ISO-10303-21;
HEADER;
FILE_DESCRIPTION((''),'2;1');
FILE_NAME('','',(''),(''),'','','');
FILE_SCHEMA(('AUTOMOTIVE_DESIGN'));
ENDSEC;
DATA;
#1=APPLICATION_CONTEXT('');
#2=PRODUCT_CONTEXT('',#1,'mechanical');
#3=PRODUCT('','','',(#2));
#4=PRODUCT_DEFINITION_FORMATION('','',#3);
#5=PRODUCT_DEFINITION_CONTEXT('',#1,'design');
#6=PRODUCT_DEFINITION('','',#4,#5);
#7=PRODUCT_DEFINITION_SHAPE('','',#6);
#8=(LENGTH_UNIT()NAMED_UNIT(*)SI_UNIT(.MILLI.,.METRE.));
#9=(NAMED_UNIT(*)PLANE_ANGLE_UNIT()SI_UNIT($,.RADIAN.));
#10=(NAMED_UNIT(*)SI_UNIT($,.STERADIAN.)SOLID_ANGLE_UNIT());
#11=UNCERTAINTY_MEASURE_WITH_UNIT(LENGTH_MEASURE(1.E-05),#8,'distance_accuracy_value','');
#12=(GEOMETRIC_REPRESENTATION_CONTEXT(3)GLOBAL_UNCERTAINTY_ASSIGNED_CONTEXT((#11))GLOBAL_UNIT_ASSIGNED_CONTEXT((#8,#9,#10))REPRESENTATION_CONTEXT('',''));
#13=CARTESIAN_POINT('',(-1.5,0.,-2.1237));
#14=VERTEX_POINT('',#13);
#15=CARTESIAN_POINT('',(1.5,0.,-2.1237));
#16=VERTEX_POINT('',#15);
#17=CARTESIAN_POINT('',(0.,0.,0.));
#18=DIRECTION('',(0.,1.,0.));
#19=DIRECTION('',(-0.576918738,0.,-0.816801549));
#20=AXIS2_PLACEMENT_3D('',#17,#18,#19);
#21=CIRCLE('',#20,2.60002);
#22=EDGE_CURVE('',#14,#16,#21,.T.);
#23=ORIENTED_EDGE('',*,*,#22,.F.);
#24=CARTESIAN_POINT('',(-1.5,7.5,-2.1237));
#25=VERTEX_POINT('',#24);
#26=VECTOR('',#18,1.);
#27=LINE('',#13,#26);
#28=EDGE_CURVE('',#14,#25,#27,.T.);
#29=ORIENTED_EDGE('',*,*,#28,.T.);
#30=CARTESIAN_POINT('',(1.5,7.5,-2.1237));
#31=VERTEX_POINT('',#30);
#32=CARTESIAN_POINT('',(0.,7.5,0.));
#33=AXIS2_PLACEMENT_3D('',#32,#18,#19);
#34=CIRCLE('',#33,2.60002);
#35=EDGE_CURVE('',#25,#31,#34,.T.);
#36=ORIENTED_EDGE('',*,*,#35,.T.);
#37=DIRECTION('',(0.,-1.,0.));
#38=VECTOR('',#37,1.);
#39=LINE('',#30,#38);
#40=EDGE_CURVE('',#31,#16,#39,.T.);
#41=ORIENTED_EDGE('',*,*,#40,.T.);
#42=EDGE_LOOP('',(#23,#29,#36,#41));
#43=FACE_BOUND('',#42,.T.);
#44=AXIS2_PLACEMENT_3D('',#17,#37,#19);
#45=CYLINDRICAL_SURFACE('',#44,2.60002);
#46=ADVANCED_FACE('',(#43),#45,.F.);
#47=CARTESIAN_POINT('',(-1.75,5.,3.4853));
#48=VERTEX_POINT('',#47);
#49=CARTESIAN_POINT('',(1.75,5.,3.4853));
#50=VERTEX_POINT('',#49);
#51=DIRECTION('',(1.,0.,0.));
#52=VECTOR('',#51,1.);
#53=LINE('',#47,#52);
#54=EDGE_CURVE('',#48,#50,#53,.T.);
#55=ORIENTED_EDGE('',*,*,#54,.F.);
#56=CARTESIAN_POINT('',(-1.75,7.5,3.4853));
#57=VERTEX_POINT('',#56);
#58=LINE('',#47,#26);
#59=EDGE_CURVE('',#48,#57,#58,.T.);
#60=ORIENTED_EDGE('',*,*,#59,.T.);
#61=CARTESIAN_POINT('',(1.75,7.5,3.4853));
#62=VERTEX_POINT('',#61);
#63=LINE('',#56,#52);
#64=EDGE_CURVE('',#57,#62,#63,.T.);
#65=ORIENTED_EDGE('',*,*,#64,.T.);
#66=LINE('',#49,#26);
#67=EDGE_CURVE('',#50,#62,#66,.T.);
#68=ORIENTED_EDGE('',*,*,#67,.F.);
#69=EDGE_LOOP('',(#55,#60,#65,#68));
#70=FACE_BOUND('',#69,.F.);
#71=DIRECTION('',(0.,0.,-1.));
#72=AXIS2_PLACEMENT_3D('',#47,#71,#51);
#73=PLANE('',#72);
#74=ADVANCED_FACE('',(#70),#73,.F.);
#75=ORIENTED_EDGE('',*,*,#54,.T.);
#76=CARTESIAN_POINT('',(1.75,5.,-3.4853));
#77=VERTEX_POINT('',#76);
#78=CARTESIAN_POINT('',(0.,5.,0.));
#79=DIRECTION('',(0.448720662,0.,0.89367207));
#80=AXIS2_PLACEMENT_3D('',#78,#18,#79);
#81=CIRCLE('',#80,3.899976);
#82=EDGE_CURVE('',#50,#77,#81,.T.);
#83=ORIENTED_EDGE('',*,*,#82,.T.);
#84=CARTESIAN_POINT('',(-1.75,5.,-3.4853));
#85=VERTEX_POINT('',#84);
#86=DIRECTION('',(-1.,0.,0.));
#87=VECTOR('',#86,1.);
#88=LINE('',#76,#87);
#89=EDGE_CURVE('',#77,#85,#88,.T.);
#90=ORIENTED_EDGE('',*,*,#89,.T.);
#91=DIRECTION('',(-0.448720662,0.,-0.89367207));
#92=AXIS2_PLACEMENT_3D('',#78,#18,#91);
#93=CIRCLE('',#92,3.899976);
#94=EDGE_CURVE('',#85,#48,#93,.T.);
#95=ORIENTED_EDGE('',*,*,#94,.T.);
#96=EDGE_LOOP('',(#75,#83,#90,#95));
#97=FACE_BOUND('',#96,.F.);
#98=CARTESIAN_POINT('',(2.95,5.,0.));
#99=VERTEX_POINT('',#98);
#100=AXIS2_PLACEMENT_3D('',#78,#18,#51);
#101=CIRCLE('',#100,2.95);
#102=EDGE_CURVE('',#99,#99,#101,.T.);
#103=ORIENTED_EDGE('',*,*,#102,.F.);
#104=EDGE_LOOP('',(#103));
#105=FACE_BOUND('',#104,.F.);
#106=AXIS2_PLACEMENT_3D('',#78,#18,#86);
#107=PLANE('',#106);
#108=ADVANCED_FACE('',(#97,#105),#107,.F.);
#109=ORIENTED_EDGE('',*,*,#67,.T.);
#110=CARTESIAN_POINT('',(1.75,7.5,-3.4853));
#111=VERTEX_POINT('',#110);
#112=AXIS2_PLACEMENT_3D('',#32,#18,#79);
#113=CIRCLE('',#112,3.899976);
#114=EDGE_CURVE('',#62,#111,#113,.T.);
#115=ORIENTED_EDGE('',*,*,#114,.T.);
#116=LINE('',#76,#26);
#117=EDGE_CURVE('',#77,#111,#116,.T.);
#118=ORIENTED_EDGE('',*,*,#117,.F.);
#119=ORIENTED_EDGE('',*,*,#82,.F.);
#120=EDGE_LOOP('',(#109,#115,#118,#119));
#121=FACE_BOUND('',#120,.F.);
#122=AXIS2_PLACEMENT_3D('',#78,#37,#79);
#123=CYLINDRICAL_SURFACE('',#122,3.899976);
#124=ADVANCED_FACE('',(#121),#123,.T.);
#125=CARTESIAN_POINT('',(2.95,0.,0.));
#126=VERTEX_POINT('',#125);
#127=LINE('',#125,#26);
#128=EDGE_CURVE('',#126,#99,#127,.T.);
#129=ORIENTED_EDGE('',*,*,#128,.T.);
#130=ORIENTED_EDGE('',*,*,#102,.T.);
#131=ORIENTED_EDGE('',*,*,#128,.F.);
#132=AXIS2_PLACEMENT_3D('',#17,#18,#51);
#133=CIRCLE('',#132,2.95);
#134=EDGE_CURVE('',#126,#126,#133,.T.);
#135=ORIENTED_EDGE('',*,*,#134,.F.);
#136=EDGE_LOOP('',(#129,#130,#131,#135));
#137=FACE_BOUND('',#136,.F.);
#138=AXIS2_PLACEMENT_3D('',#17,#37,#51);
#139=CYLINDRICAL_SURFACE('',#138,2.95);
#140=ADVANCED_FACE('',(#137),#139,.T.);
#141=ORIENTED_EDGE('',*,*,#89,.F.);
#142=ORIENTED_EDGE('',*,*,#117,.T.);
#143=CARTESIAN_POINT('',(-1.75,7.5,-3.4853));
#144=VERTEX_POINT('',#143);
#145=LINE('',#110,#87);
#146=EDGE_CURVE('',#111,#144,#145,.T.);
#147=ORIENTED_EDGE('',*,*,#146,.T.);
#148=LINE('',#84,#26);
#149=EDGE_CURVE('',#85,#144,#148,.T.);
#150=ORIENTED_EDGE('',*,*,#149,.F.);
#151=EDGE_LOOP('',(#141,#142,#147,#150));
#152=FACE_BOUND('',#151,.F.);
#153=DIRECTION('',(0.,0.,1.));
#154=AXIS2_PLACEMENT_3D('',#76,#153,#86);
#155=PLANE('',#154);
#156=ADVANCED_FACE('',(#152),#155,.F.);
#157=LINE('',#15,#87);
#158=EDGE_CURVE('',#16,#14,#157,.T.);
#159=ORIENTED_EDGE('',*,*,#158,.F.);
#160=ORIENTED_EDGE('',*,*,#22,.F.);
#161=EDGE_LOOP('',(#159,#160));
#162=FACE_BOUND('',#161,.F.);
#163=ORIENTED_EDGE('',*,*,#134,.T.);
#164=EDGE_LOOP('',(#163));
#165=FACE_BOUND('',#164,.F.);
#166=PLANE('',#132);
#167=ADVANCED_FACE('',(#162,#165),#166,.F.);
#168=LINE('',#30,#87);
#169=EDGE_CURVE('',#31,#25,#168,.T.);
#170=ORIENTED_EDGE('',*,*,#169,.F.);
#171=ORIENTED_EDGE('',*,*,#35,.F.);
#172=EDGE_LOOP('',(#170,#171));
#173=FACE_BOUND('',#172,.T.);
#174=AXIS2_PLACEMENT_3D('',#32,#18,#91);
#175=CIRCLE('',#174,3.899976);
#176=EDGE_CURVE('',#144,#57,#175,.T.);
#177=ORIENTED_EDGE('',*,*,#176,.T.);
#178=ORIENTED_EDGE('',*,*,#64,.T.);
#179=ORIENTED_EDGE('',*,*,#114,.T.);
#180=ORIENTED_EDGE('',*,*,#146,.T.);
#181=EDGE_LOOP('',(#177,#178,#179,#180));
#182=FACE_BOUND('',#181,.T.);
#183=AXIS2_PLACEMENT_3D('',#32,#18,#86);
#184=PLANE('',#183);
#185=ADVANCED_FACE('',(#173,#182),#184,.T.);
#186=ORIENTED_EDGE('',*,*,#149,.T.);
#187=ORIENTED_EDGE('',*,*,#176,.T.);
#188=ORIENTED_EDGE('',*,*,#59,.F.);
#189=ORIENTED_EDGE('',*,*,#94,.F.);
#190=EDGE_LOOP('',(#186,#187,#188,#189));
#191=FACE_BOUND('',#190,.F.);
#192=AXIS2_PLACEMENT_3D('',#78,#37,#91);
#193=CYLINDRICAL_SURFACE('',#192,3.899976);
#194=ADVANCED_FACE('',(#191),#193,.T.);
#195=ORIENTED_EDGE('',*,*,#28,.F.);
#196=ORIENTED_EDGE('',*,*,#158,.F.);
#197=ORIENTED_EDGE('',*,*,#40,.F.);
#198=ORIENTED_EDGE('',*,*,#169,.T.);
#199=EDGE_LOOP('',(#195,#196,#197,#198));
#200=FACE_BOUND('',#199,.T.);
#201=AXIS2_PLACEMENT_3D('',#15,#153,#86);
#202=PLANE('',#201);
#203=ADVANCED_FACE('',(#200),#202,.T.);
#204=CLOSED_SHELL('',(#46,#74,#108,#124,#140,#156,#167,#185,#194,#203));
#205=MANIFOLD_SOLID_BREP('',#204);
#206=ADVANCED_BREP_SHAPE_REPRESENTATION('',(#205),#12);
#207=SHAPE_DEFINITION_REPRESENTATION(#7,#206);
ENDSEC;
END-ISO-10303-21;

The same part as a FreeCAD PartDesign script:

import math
import FreeCAD as App
import Part
import Sketcher

V = App.Vector

doc = App.newDocument("Part")
body = doc.addObject("PartDesign::Body", "Body")

sketch1 = body.newObject("Sketcher::SketchObject", "Sketch")
sketch1.AttachmentSupport = (doc.getObject("XZ_Plane"), [""])
sketch1.MapMode = "FlatFace"
sketch1.addGeometry([
    Part.Circle(V(0, 0, 0), V(0, 0, 1), 3),
    Part.ArcOfCircle(Part.Circle(V(0, 0, 0), V(0, 0, 1), 2.6), math.radians(-55), math.radians(235)),
    Part.LineSegment(V(-1.5, -2.1, 0), V(1.5, -2.1, 0)),
], False)
sketch1.addConstraint([
    Sketcher.Constraint("Coincident", 1, 1, 2, 2),
    Sketcher.Constraint("Coincident", 2, 1, 1, 2),
    Sketcher.Constraint("Horizontal", 2),
    Sketcher.Constraint("Coincident", 0, 3, -1, 1),
    Sketcher.Constraint("Coincident", 1, 3, -1, 1),
    Sketcher.Constraint("Diameter", 0, 5.9),
    Sketcher.Constraint("Radius", 1, 2.6),
    Sketcher.Constraint("DistanceX", 2, 1, 2, 2, 3.0),
])
pad1 = body.newObject("PartDesign::Pad", "Pad")
pad1.Profile = sketch1
pad1.Length = 5
pad1.Reversed = True

sketch2 = body.newObject("Sketcher::SketchObject", "Sketch001")
sketch2.AttachmentSupport = (doc.getObject("XZ_Plane"), [""])
sketch2.MapMode = "FlatFace"
sketch2.AttachmentOffset = App.Placement(V(0, 0, -5), App.Rotation())
sketch2.addGeometry([
    Part.LineSegment(V(1.8, -3.5, 0), V(-1.8, -3.5, 0)),
    Part.ArcOfCircle(Part.Circle(V(0, 0, 0), V(0, 0, 1), 3.9), math.radians(117), math.radians(243)),
    Part.LineSegment(V(-1.8, 3.5, 0), V(1.8, 3.5, 0)),
    Part.ArcOfCircle(Part.Circle(V(0, 0, 0), V(0, 0, 1), 3.9), math.radians(-63), math.radians(63)),
    Part.ArcOfCircle(Part.Circle(V(0, 0, 0), V(0, 0, 1), 2.6), math.radians(-55), math.radians(235)),
    Part.LineSegment(V(-1.5, -2.1, 0), V(1.5, -2.1, 0)),
], False)
sketch2.addConstraint([
    Sketcher.Constraint("Coincident", 0, 2, 1, 2),
    Sketcher.Constraint("Coincident", 1, 1, 2, 1),
    Sketcher.Constraint("Coincident", 2, 2, 3, 2),
    Sketcher.Constraint("Coincident", 3, 1, 0, 1),
    Sketcher.Constraint("Coincident", 4, 1, 5, 2),
    Sketcher.Constraint("Coincident", 5, 1, 4, 2),
    Sketcher.Constraint("Horizontal", 0),
    Sketcher.Constraint("Horizontal", 2),
    Sketcher.Constraint("Horizontal", 5),
    Sketcher.Constraint("Coincident", 1, 3, -1, 1),
    Sketcher.Constraint("Coincident", 3, 3, -1, 1),
    Sketcher.Constraint("Coincident", 4, 3, -1, 1),
    Sketcher.Constraint("Equal", 1, 3),
    Sketcher.Constraint("Vertical", 0, 2, 1, 1),
    Sketcher.Constraint("Radius", 1, 3.9),
    Sketcher.Constraint("Radius", 4, 2.6),
    Sketcher.Constraint("DistanceX", 5, 1, 5, 2, 3.0),
    Sketcher.Constraint("DistanceX", 0, 2, 0, 1, 3.5),
])
pad2 = body.newObject("PartDesign::Pad", "Pad001")
pad2.Profile = sketch2
pad2.Length = 2.5
pad2.Reversed = True

doc.recompute()
